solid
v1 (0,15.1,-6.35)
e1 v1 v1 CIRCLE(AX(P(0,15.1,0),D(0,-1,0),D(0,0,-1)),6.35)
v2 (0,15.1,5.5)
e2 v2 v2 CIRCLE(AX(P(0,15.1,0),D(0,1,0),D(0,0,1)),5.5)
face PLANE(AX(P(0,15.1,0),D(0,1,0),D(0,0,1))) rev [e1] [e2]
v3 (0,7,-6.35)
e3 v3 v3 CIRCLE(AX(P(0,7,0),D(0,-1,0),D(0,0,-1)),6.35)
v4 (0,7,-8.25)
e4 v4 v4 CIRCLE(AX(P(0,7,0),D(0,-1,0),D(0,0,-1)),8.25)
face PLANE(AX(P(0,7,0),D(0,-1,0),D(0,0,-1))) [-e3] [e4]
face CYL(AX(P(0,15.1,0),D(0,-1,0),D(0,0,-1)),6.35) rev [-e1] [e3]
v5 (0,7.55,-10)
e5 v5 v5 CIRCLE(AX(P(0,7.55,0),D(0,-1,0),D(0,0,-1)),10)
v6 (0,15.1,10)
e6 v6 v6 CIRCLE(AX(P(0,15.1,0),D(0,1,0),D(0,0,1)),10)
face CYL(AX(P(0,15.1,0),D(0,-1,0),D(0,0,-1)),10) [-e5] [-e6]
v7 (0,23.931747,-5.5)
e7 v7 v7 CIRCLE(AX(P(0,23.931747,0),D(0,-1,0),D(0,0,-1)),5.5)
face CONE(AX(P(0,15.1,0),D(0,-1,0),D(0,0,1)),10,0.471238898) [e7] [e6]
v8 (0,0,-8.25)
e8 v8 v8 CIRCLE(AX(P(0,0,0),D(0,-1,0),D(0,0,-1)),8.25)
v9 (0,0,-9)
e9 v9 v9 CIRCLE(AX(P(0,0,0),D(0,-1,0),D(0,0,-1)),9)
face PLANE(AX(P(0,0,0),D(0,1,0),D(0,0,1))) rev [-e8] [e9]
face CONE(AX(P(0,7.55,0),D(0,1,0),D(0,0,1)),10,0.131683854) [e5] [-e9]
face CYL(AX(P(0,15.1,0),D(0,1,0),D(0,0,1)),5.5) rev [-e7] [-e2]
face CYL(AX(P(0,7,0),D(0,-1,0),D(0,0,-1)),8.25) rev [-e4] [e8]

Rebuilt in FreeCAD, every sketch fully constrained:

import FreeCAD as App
import Part
import Sketcher
from FreeCAD import Vector
Q = App.Units.Quantity

doc = App.newDocument("Part")
body = doc.addObject("PartDesign::Body", "Body")

sketch1 = doc.addObject("Sketcher::SketchObject", "Sketch")
body.addObject(sketch1)
sketch1.AttachmentSupport = (doc.XZ_Plane, [""])
sketch1.MapMode = "FlatFace"
sketch1.addGeometry(Part.Circle(Vector(0, 0, 0), Vector(0, 0, 1), 10), False)
sketch1.addConstraint([
    Sketcher.Constraint("Coincident", 0, 3, -1, 1),
    Sketcher.Constraint("Diameter", 0, Q("20 mm")),
])
pad1 = doc.addObject("PartDesign::Pad", "Pad")
body.addObject(pad1)
pad1.Profile = sketch1
pad1.Length = 15.1
pad1.Reversed = True

sketch2 = doc.addObject("Sketcher::SketchObject", "Sketch001")
body.addObject(sketch2)
sketch2.AttachmentSupport = (doc.XZ_Plane, [""])
sketch2.MapMode = "FlatFace"
sketch2.addGeometry(Part.Circle(Vector(0, 0, 0), Vector(0, 0, 1), 8), False)
sketch2.addConstraint([
    Sketcher.Constraint("Coincident", 0, 3, -1, 1),
    Sketcher.Constraint("Diameter", 0, Q("16.5 mm")),
])
pocket1 = doc.addObject("PartDesign::Pocket", "Pocket")
body.addObject(pocket1)
pocket1.Profile = sketch2
pocket1.Length = 7

sketch3 = doc.addObject("Sketcher::SketchObject", "Sketch002")
body.addObject(sketch3)
sketch3.AttachmentSupport = (doc.XZ_Plane, [""])
sketch3.MapMode = "FlatFace"
sketch3.AttachmentOffset = App.Placement(Vector(0, 0, -7), App.Rotation())
sketch3.addGeometry(Part.Circle(Vector(0, 0, 0), Vector(0, 0, 1), 6), False)
sketch3.addConstraint([
    Sketcher.Constraint("Coincident", 0, 3, -1, 1),
    Sketcher.Constraint("Diameter", 0, Q("12.7 mm")),
])
pocket2 = doc.addObject("PartDesign::Pocket", "Pocket001")
body.addObject(pocket2)
pocket2.Profile = sketch3
pocket2.Length = 8.1

sketch4 = doc.addObject("Sketcher::SketchObject", "Sketch003")
body.addObject(sketch4)
sketch4.AttachmentSupport = (doc.XZ_Plane, [""])
sketch4.MapMode = "FlatFace"
sketch4.AttachmentOffset = App.Placement(Vector(0, 0, -15.1), App.Rotation())
sketch4.addGeometry(Part.Circle(Vector(0, 0, 0), Vector(0, 0, 1), 10), False)
sketch4.addConstraint([
    Sketcher.Constraint("Coincident", 0, 3, -1, 1),
    Sketcher.Constraint("Diameter", 0, Q("20 mm")),
])
pad2 = doc.addObject("PartDesign::Pad", "Pad001")
body.addObject(pad2)
pad2.Profile = sketch4
pad2.Length = 10
pad2.Reversed = True
pad2.TaperAngle = -27

sketch5 = doc.addObject("Sketcher::SketchObject", "Sketch004")
body.addObject(sketch5)
sketch5.AttachmentSupport = (doc.XZ_Plane, [""])
sketch5.MapMode = "FlatFace"
sketch5.AttachmentOffset = App.Placement(Vector(0, 0, -25.1), App.Rotation())
sketch5.addGeometry(Part.Circle(Vector(0, 0, 0), Vector(0, 0, 1), 6), False)
sketch5.addConstraint([
    Sketcher.Constraint("Coincident", 0, 3, -1, 1),
    Sketcher.Constraint("Diameter", 0, Q("11 mm")),
])
pocket3 = doc.addObject("PartDesign::Pocket", "Pocket002")
body.addObject(pocket3)
pocket3.Profile = sketch5
pocket3.Length = 10
pocket3.Reversed = True

sketch6 = doc.addObject("Sketcher::SketchObject", "Sketch005")
body.addObject(sketch6)
sketch6.AttachmentSupport = (doc.XY_Plane, [""])
sketch6.MapMode = "FlatFace"
sketch6.addGeometry([
    Part.LineSegment(Vector(10, 0, 0), Vector(10, 7.5, 0)),
    Part.LineSegment(Vector(10, 7.5, 0), Vector(9, 0, 0)),
    Part.LineSegment(Vector(9, 0, 0), Vector(10, 0, 0)),
], False)
sketch6.addConstraint([
    Sketcher.Constraint("Coincident", 0, 2, 1, 1),
    Sketcher.Constraint("Coincident", 1, 2, 2, 1),
    Sketcher.Constraint("Coincident", 2, 2, 0, 1),
    Sketcher.Constraint("Vertical", 0),
    Sketcher.Constraint("Horizontal", 2),
    Sketcher.Constraint("PointOnObject", 1, 2, -1),
    Sketcher.Constraint("DistanceX", 2, 1, 2, 2, Q("1 mm")),
    Sketcher.Constraint("DistanceX", -1, 1, 0, 2, Q("10 mm")),
    Sketcher.Constraint("DistanceY", 0, 1, 0, 2, Q("7.55 mm")),
])
groove = doc.addObject("PartDesign::Groove", "Groove")
body.addObject(groove)
groove.Profile = sketch6
groove.ReferenceAxis = (sketch6, ["V_Axis"])
groove.Angle = 360

doc.recompute()
